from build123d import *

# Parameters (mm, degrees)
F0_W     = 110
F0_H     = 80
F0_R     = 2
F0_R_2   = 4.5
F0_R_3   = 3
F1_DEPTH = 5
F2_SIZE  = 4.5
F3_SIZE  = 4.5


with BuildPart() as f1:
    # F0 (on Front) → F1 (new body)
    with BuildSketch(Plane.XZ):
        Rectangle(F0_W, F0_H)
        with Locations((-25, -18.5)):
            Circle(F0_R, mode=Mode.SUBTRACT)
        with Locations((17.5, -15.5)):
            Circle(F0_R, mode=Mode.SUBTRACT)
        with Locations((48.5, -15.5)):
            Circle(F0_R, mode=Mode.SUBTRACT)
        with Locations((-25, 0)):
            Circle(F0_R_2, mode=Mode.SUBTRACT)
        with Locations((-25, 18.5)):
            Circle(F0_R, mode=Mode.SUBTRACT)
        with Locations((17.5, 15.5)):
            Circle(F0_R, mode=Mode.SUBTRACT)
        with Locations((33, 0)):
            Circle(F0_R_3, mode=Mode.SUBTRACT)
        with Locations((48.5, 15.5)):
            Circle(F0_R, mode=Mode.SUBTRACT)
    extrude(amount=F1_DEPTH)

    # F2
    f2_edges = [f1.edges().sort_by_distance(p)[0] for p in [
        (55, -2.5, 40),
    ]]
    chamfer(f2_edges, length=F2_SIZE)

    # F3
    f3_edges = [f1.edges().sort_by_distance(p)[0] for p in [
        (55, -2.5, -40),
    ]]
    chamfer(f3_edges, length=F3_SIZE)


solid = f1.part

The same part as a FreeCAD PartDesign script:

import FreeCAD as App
import Part
import Sketcher

V = App.Vector
Q = App.Units.Quantity


def edges_at(feature, points):
    """Names of the edges that pass closest to the given points."""
    edges = feature.Shape.Edges
    near = lambda p: min(range(len(edges)), key=lambda i: edges[i].distToShape(Part.Vertex(*p))[0])
    return sorted({f"Edge{near(p) + 1}" for p in points})


def add_polygon(sketch, points):
    """Adds a closed chain of lines whose ends are joined by coincident constraints."""
    first, n = sketch.GeometryCount, len(points)
    for a, b in zip(points, points[1:] + points[:1]):
        sketch.addGeometry(Part.LineSegment(App.Vector(*a, 0), App.Vector(*b, 0)), False)
    for i in range(n):
        sketch.addConstraint(Sketcher.Constraint("Coincident", first + i, 2, first + (i + 1) % n, 1))

doc = App.newDocument("Part")
body = doc.addObject("PartDesign::Body", "Body")

# Sketch on XZ plane
sketch1 = doc.addObject("Sketcher::SketchObject", "Sketch")
body.addObject(sketch1)
sketch1.AttachmentSupport = (doc.XZ_Plane, [""])
sketch1.MapMode = "FlatFace"
add_polygon(sketch1, [(-55, 40), (-55, -40), (55, -40), (55, 40)])  # lines 0-3
sketch1.addGeometry(Part.Circle(V(-25, -18.5, 0), V(0, 0, 1), 2), False)  # 4
sketch1.addGeometry(Part.Circle(V(17.5, -15.5, 0), V(0, 0, 1), 2), False)  # 5
sketch1.addGeometry(Part.Circle(V(48.5, -15.5, 0), V(0, 0, 1), 2), False)  # 6
sketch1.addGeometry(Part.Circle(V(-25, 0, 0), V(0, 0, 1), 4.5), False)  # 7
sketch1.addGeometry(Part.Circle(V(-25, 18.5, 0), V(0, 0, 1), 2), False)  # 8
sketch1.addGeometry(Part.Circle(V(33, 0, 0), V(0, 0, 1), 3), False)  # 9
sketch1.addGeometry(Part.Circle(V(17.5, 15.5, 0), V(0, 0, 1), 2), False)  # 10
sketch1.addGeometry(Part.Circle(V(48.5, 15.5, 0), V(0, 0, 1), 2), False)  # 11
sketch1.addConstraint([
    Sketcher.Constraint("Vertical", 0),
    Sketcher.Constraint("Horizontal", 1),
    Sketcher.Constraint("Vertical", 2),
    Sketcher.Constraint("Horizontal", 3),
    Sketcher.Constraint("Equal", 4, 5),
    Sketcher.Constraint("Equal", 5, 6),
    Sketcher.Constraint("Equal", 6, 8),
    Sketcher.Constraint("Equal", 8, 10),
    Sketcher.Constraint("Equal", 10, 11),
    Sketcher.Constraint("Symmetric", 0, 2, 2, 2, -1, 1),
    Sketcher.Constraint("Symmetric", 4, 3, 8, 3, -1),
    Sketcher.Constraint("Symmetric", 5, 3, 10, 3, -1),
    Sketcher.Constraint("Symmetric", 6, 3, 11, 3, -1),
    Sketcher.Constraint("PointOnObject", 7, 3, -1),
    Sketcher.Constraint("PointOnObject", 9, 3, -1),
    Sketcher.Constraint("Horizontal", 5, 3, 6, 3),
    Sketcher.Constraint("Vertical", 4, 3, 7, 3),
    Sketcher.Constraint("Diameter", 4, Q("4 mm")),
    Sketcher.Constraint("Diameter", 7, Q("9 mm")),
    Sketcher.Constraint("Diameter", 9, Q("6 mm")),
    Sketcher.Constraint("DistanceX", 1, 1, 1, 2, Q("110 mm")),
    Sketcher.Constraint("DistanceY", 0, 2, 0, 1, Q("80 mm")),
    Sketcher.Constraint("DistanceX", 4, 3, -1, 1, Q("25 mm")),
    Sketcher.Constraint("DistanceX", -1, 1, 9, 3, Q("33 mm")),
    Sketcher.Constraint("DistanceY", 4, 3, 5, 3, Q("3 mm")),
    Sketcher.Constraint("DistanceX", 5, 3, 6, 3, Q("31 mm")),
    Sketcher.Constraint("DistanceY", 4, 3, 8, 3, Q("37 mm")),
    Sketcher.Constraint("DistanceX", -1, 1, 5, 3, Q("17.5 mm")),
])
pad1 = doc.addObject("PartDesign::Pad", "Pad")
body.addObject(pad1)
pad1.Profile = sketch1
pad1.Length = 5
doc.recompute()

chamfer = doc.addObject("PartDesign::Chamfer", "Chamfer")
body.addObject(chamfer)
chamfer.Base = (pad1, edges_at(pad1, [(55, -2.5, 40)]))
chamfer.Size = 4.5
doc.recompute()

chamfer2 = doc.addObject("PartDesign::Chamfer", "Chamfer001")
body.addObject(chamfer2)
chamfer2.Base = (chamfer, edges_at(chamfer, [(55, -2.5, -40)]))
chamfer2.Size = 4.5

doc.recompute()
